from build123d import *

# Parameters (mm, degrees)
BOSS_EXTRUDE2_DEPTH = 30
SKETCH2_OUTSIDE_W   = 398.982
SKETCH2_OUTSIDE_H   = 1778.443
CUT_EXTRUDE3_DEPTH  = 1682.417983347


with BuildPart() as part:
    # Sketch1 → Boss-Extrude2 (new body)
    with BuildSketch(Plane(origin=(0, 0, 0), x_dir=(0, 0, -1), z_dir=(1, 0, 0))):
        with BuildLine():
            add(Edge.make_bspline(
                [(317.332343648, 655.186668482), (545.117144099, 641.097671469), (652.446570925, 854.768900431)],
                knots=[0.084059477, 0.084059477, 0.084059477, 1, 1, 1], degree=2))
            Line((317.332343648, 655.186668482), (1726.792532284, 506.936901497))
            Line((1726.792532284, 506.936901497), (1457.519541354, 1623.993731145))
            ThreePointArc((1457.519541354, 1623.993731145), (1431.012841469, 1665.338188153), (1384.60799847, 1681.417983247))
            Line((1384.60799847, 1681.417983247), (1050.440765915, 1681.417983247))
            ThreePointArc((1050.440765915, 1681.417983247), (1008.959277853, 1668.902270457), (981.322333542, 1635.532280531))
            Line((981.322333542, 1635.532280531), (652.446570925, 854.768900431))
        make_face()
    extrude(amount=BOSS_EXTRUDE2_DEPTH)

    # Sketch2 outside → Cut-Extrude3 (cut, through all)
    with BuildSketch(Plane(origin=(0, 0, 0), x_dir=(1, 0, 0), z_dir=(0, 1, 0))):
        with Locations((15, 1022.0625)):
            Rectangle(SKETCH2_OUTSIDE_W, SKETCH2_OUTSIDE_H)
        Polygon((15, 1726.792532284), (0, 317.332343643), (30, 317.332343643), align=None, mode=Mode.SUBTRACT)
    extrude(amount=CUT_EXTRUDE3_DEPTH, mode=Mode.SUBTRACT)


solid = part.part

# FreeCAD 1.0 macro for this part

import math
import FreeCAD as App
import Part
import Sketcher


def add_polygon(sketch, points):
    """Adds a closed chain of lines whose ends are joined by coincident constraints."""
    first, n = sketch.GeometryCount, len(points)
    for a, b in zip(points, points[1:] + points[:1]):
        sketch.addGeometry(Part.LineSegment(App.Vector(*a, 0), App.Vector(*b, 0)), False)
    for i in range(n):
        sketch.addConstraint(Sketcher.Constraint("Coincident", first + i, 2, first + (i + 1) % n, 1))

doc = App.newDocument("Part")
params = doc.addObject("Spreadsheet::Sheet", "Params")
for row, (alias, value) in enumerate([
    ("sketch1_radius", "75 mm"),
    ("pad1_length", "30 mm"),
    ("sketch2_width", "30 mm"),
], start=1):
    params.set(f"A{row}", alias)
    params.set(f"B{row}", "=" + value)
    params.setAlias(f"B{row}", alias)

body = doc.addObject("PartDesign::Body", "Body")

sketch1 = body.newObject("Sketcher::SketchObject", "Sketch")
sketch1.AttachmentSupport = (doc.getObject("YZ_Plane"), [""])
sketch1.MapMode = "FlatFace"
sketch1.addGeometry([
    Part.BSplineCurve([App.Vector(655.186668, -317.332344, 0), App.Vector(641.097671, -545.117144, 0), App.Vector(854.7689, -652.446571, 0)], [3, 3], [0.084059477, 1], False, 2, [1, 1, 1], False),
    Part.LineSegment(App.Vector(655.186668, -317.332344, 0), App.Vector(506.936901, -1726.792532, 0)),
    Part.LineSegment(App.Vector(506.936901, -1726.792532, 0), App.Vector(1623.993731, -1457.519541, 0)),
    Part.ArcOfCircle(Part.Circle(App.Vector(1606.417983, -1384.607998, 0), App.Vector(0, 0, 1), 75), math.radians(-76.447084), math.radians(0)),
    Part.LineSegment(App.Vector(1681.417983, -1384.607998, 0), App.Vector(1681.417983, -1050.440766, 0)),
    Part.ArcOfCircle(Part.Circle(App.Vector(1606.417983, -1050.440766, 0), App.Vector(0, 0, 1), 75), math.radians(0), math.radians(67.158038)),
    Part.LineSegment(App.Vector(1635.532281, -981.322334, 0), App.Vector(854.7689, -652.446571, 0)),
], False)
sketch1.addConstraint([
    Sketcher.Constraint("Block", 0),
    Sketcher.Constraint("Coincident", 0, 1, 1, 1),
    Sketcher.Constraint("Coincident", 1, 2, 2, 1),
    Sketcher.Constraint("Tangent", 2, 2, 3, 1),
    Sketcher.Constraint("Tangent", 3, 2, 4, 1),
    Sketcher.Constraint("Tangent", 4, 2, 5, 1),
    Sketcher.Constraint("Tangent", 5, 2, 6, 1),
    Sketcher.Constraint("Coincident", 6, 2, 0, 2),
    Sketcher.Constraint("Vertical", 4),
    Sketcher.Constraint("Equal", 3, 5),
    Sketcher.Constraint("Radius", 3, 75.0),
    Sketcher.Constraint("DistanceY", 3, 3, -1, 1, 1384.607998),
    Sketcher.Constraint("Distance", 6, 847.201701),
    Sketcher.Constraint("DistanceX", -1, 1, 1, 2, 506.936901),
    Sketcher.Constraint("Distance", 2, 1149.053482),
    Sketcher.Constraint("DistanceY", 4, 1, 4, 2, 334.167233),
])
sketch1.setExpression("Constraints[10]", "Params.sketch1_radius")
pad1 = body.newObject("PartDesign::Pad", "Pad")
pad1.Profile = sketch1
pad1.setExpression("Length", "Params.pad1_length")

sketch2 = body.newObject("Sketcher::SketchObject", "Sketch001")
sketch2.AttachmentSupport = (doc.getObject("XZ_Plane"), [""])
sketch2.MapMode = "FlatFace"
add_polygon(sketch2, [(-184, -1911), (-184, -133), (214, -133), (214, -1911)])
add_polygon(sketch2, [(0, -317), (15, -1727), (30, -317)])
sketch2.addConstraint([
    Sketcher.Constraint("Vertical", 0),
    Sketcher.Constraint("Horizontal", 1),
    Sketcher.Constraint("Vertical", 2),
    Sketcher.Constraint("Horizontal", 3),
    Sketcher.Constraint("Horizontal", 6),
    Sketcher.Constraint("PointOnObject", 6, 2, -2),
    Sketcher.Constraint("Equal", 4, 5),
    Sketcher.Constraint("DistanceX", 6, 2, 6, 1, 30.0),
    Sketcher.Constraint("DistanceX", 1, 1, 1, 2, 398.982),
    Sketcher.Constraint("DistanceY", 0, 1, 0, 2, 1778.443),
    Sketcher.Constraint("DistanceX", 0, 2, -1, 1, 184.491),
    Sketcher.Constraint("DistanceY", 0, 2, -1, 1, 132.841),
    Sketcher.Constraint("DistanceY", 4, 2, 5, 2, 1409.460189),
    Sketcher.Constraint("DistanceY", 4, 2, -1, 1, 1726.792532),
])
sketch2.setExpression("Constraints[14]", "Params.sketch2_width")
pocket1 = body.newObject("PartDesign::Pocket", "Pocket")
pocket1.Profile = sketch2
pocket1.Type = "ThroughAll"

doc.recompute()
